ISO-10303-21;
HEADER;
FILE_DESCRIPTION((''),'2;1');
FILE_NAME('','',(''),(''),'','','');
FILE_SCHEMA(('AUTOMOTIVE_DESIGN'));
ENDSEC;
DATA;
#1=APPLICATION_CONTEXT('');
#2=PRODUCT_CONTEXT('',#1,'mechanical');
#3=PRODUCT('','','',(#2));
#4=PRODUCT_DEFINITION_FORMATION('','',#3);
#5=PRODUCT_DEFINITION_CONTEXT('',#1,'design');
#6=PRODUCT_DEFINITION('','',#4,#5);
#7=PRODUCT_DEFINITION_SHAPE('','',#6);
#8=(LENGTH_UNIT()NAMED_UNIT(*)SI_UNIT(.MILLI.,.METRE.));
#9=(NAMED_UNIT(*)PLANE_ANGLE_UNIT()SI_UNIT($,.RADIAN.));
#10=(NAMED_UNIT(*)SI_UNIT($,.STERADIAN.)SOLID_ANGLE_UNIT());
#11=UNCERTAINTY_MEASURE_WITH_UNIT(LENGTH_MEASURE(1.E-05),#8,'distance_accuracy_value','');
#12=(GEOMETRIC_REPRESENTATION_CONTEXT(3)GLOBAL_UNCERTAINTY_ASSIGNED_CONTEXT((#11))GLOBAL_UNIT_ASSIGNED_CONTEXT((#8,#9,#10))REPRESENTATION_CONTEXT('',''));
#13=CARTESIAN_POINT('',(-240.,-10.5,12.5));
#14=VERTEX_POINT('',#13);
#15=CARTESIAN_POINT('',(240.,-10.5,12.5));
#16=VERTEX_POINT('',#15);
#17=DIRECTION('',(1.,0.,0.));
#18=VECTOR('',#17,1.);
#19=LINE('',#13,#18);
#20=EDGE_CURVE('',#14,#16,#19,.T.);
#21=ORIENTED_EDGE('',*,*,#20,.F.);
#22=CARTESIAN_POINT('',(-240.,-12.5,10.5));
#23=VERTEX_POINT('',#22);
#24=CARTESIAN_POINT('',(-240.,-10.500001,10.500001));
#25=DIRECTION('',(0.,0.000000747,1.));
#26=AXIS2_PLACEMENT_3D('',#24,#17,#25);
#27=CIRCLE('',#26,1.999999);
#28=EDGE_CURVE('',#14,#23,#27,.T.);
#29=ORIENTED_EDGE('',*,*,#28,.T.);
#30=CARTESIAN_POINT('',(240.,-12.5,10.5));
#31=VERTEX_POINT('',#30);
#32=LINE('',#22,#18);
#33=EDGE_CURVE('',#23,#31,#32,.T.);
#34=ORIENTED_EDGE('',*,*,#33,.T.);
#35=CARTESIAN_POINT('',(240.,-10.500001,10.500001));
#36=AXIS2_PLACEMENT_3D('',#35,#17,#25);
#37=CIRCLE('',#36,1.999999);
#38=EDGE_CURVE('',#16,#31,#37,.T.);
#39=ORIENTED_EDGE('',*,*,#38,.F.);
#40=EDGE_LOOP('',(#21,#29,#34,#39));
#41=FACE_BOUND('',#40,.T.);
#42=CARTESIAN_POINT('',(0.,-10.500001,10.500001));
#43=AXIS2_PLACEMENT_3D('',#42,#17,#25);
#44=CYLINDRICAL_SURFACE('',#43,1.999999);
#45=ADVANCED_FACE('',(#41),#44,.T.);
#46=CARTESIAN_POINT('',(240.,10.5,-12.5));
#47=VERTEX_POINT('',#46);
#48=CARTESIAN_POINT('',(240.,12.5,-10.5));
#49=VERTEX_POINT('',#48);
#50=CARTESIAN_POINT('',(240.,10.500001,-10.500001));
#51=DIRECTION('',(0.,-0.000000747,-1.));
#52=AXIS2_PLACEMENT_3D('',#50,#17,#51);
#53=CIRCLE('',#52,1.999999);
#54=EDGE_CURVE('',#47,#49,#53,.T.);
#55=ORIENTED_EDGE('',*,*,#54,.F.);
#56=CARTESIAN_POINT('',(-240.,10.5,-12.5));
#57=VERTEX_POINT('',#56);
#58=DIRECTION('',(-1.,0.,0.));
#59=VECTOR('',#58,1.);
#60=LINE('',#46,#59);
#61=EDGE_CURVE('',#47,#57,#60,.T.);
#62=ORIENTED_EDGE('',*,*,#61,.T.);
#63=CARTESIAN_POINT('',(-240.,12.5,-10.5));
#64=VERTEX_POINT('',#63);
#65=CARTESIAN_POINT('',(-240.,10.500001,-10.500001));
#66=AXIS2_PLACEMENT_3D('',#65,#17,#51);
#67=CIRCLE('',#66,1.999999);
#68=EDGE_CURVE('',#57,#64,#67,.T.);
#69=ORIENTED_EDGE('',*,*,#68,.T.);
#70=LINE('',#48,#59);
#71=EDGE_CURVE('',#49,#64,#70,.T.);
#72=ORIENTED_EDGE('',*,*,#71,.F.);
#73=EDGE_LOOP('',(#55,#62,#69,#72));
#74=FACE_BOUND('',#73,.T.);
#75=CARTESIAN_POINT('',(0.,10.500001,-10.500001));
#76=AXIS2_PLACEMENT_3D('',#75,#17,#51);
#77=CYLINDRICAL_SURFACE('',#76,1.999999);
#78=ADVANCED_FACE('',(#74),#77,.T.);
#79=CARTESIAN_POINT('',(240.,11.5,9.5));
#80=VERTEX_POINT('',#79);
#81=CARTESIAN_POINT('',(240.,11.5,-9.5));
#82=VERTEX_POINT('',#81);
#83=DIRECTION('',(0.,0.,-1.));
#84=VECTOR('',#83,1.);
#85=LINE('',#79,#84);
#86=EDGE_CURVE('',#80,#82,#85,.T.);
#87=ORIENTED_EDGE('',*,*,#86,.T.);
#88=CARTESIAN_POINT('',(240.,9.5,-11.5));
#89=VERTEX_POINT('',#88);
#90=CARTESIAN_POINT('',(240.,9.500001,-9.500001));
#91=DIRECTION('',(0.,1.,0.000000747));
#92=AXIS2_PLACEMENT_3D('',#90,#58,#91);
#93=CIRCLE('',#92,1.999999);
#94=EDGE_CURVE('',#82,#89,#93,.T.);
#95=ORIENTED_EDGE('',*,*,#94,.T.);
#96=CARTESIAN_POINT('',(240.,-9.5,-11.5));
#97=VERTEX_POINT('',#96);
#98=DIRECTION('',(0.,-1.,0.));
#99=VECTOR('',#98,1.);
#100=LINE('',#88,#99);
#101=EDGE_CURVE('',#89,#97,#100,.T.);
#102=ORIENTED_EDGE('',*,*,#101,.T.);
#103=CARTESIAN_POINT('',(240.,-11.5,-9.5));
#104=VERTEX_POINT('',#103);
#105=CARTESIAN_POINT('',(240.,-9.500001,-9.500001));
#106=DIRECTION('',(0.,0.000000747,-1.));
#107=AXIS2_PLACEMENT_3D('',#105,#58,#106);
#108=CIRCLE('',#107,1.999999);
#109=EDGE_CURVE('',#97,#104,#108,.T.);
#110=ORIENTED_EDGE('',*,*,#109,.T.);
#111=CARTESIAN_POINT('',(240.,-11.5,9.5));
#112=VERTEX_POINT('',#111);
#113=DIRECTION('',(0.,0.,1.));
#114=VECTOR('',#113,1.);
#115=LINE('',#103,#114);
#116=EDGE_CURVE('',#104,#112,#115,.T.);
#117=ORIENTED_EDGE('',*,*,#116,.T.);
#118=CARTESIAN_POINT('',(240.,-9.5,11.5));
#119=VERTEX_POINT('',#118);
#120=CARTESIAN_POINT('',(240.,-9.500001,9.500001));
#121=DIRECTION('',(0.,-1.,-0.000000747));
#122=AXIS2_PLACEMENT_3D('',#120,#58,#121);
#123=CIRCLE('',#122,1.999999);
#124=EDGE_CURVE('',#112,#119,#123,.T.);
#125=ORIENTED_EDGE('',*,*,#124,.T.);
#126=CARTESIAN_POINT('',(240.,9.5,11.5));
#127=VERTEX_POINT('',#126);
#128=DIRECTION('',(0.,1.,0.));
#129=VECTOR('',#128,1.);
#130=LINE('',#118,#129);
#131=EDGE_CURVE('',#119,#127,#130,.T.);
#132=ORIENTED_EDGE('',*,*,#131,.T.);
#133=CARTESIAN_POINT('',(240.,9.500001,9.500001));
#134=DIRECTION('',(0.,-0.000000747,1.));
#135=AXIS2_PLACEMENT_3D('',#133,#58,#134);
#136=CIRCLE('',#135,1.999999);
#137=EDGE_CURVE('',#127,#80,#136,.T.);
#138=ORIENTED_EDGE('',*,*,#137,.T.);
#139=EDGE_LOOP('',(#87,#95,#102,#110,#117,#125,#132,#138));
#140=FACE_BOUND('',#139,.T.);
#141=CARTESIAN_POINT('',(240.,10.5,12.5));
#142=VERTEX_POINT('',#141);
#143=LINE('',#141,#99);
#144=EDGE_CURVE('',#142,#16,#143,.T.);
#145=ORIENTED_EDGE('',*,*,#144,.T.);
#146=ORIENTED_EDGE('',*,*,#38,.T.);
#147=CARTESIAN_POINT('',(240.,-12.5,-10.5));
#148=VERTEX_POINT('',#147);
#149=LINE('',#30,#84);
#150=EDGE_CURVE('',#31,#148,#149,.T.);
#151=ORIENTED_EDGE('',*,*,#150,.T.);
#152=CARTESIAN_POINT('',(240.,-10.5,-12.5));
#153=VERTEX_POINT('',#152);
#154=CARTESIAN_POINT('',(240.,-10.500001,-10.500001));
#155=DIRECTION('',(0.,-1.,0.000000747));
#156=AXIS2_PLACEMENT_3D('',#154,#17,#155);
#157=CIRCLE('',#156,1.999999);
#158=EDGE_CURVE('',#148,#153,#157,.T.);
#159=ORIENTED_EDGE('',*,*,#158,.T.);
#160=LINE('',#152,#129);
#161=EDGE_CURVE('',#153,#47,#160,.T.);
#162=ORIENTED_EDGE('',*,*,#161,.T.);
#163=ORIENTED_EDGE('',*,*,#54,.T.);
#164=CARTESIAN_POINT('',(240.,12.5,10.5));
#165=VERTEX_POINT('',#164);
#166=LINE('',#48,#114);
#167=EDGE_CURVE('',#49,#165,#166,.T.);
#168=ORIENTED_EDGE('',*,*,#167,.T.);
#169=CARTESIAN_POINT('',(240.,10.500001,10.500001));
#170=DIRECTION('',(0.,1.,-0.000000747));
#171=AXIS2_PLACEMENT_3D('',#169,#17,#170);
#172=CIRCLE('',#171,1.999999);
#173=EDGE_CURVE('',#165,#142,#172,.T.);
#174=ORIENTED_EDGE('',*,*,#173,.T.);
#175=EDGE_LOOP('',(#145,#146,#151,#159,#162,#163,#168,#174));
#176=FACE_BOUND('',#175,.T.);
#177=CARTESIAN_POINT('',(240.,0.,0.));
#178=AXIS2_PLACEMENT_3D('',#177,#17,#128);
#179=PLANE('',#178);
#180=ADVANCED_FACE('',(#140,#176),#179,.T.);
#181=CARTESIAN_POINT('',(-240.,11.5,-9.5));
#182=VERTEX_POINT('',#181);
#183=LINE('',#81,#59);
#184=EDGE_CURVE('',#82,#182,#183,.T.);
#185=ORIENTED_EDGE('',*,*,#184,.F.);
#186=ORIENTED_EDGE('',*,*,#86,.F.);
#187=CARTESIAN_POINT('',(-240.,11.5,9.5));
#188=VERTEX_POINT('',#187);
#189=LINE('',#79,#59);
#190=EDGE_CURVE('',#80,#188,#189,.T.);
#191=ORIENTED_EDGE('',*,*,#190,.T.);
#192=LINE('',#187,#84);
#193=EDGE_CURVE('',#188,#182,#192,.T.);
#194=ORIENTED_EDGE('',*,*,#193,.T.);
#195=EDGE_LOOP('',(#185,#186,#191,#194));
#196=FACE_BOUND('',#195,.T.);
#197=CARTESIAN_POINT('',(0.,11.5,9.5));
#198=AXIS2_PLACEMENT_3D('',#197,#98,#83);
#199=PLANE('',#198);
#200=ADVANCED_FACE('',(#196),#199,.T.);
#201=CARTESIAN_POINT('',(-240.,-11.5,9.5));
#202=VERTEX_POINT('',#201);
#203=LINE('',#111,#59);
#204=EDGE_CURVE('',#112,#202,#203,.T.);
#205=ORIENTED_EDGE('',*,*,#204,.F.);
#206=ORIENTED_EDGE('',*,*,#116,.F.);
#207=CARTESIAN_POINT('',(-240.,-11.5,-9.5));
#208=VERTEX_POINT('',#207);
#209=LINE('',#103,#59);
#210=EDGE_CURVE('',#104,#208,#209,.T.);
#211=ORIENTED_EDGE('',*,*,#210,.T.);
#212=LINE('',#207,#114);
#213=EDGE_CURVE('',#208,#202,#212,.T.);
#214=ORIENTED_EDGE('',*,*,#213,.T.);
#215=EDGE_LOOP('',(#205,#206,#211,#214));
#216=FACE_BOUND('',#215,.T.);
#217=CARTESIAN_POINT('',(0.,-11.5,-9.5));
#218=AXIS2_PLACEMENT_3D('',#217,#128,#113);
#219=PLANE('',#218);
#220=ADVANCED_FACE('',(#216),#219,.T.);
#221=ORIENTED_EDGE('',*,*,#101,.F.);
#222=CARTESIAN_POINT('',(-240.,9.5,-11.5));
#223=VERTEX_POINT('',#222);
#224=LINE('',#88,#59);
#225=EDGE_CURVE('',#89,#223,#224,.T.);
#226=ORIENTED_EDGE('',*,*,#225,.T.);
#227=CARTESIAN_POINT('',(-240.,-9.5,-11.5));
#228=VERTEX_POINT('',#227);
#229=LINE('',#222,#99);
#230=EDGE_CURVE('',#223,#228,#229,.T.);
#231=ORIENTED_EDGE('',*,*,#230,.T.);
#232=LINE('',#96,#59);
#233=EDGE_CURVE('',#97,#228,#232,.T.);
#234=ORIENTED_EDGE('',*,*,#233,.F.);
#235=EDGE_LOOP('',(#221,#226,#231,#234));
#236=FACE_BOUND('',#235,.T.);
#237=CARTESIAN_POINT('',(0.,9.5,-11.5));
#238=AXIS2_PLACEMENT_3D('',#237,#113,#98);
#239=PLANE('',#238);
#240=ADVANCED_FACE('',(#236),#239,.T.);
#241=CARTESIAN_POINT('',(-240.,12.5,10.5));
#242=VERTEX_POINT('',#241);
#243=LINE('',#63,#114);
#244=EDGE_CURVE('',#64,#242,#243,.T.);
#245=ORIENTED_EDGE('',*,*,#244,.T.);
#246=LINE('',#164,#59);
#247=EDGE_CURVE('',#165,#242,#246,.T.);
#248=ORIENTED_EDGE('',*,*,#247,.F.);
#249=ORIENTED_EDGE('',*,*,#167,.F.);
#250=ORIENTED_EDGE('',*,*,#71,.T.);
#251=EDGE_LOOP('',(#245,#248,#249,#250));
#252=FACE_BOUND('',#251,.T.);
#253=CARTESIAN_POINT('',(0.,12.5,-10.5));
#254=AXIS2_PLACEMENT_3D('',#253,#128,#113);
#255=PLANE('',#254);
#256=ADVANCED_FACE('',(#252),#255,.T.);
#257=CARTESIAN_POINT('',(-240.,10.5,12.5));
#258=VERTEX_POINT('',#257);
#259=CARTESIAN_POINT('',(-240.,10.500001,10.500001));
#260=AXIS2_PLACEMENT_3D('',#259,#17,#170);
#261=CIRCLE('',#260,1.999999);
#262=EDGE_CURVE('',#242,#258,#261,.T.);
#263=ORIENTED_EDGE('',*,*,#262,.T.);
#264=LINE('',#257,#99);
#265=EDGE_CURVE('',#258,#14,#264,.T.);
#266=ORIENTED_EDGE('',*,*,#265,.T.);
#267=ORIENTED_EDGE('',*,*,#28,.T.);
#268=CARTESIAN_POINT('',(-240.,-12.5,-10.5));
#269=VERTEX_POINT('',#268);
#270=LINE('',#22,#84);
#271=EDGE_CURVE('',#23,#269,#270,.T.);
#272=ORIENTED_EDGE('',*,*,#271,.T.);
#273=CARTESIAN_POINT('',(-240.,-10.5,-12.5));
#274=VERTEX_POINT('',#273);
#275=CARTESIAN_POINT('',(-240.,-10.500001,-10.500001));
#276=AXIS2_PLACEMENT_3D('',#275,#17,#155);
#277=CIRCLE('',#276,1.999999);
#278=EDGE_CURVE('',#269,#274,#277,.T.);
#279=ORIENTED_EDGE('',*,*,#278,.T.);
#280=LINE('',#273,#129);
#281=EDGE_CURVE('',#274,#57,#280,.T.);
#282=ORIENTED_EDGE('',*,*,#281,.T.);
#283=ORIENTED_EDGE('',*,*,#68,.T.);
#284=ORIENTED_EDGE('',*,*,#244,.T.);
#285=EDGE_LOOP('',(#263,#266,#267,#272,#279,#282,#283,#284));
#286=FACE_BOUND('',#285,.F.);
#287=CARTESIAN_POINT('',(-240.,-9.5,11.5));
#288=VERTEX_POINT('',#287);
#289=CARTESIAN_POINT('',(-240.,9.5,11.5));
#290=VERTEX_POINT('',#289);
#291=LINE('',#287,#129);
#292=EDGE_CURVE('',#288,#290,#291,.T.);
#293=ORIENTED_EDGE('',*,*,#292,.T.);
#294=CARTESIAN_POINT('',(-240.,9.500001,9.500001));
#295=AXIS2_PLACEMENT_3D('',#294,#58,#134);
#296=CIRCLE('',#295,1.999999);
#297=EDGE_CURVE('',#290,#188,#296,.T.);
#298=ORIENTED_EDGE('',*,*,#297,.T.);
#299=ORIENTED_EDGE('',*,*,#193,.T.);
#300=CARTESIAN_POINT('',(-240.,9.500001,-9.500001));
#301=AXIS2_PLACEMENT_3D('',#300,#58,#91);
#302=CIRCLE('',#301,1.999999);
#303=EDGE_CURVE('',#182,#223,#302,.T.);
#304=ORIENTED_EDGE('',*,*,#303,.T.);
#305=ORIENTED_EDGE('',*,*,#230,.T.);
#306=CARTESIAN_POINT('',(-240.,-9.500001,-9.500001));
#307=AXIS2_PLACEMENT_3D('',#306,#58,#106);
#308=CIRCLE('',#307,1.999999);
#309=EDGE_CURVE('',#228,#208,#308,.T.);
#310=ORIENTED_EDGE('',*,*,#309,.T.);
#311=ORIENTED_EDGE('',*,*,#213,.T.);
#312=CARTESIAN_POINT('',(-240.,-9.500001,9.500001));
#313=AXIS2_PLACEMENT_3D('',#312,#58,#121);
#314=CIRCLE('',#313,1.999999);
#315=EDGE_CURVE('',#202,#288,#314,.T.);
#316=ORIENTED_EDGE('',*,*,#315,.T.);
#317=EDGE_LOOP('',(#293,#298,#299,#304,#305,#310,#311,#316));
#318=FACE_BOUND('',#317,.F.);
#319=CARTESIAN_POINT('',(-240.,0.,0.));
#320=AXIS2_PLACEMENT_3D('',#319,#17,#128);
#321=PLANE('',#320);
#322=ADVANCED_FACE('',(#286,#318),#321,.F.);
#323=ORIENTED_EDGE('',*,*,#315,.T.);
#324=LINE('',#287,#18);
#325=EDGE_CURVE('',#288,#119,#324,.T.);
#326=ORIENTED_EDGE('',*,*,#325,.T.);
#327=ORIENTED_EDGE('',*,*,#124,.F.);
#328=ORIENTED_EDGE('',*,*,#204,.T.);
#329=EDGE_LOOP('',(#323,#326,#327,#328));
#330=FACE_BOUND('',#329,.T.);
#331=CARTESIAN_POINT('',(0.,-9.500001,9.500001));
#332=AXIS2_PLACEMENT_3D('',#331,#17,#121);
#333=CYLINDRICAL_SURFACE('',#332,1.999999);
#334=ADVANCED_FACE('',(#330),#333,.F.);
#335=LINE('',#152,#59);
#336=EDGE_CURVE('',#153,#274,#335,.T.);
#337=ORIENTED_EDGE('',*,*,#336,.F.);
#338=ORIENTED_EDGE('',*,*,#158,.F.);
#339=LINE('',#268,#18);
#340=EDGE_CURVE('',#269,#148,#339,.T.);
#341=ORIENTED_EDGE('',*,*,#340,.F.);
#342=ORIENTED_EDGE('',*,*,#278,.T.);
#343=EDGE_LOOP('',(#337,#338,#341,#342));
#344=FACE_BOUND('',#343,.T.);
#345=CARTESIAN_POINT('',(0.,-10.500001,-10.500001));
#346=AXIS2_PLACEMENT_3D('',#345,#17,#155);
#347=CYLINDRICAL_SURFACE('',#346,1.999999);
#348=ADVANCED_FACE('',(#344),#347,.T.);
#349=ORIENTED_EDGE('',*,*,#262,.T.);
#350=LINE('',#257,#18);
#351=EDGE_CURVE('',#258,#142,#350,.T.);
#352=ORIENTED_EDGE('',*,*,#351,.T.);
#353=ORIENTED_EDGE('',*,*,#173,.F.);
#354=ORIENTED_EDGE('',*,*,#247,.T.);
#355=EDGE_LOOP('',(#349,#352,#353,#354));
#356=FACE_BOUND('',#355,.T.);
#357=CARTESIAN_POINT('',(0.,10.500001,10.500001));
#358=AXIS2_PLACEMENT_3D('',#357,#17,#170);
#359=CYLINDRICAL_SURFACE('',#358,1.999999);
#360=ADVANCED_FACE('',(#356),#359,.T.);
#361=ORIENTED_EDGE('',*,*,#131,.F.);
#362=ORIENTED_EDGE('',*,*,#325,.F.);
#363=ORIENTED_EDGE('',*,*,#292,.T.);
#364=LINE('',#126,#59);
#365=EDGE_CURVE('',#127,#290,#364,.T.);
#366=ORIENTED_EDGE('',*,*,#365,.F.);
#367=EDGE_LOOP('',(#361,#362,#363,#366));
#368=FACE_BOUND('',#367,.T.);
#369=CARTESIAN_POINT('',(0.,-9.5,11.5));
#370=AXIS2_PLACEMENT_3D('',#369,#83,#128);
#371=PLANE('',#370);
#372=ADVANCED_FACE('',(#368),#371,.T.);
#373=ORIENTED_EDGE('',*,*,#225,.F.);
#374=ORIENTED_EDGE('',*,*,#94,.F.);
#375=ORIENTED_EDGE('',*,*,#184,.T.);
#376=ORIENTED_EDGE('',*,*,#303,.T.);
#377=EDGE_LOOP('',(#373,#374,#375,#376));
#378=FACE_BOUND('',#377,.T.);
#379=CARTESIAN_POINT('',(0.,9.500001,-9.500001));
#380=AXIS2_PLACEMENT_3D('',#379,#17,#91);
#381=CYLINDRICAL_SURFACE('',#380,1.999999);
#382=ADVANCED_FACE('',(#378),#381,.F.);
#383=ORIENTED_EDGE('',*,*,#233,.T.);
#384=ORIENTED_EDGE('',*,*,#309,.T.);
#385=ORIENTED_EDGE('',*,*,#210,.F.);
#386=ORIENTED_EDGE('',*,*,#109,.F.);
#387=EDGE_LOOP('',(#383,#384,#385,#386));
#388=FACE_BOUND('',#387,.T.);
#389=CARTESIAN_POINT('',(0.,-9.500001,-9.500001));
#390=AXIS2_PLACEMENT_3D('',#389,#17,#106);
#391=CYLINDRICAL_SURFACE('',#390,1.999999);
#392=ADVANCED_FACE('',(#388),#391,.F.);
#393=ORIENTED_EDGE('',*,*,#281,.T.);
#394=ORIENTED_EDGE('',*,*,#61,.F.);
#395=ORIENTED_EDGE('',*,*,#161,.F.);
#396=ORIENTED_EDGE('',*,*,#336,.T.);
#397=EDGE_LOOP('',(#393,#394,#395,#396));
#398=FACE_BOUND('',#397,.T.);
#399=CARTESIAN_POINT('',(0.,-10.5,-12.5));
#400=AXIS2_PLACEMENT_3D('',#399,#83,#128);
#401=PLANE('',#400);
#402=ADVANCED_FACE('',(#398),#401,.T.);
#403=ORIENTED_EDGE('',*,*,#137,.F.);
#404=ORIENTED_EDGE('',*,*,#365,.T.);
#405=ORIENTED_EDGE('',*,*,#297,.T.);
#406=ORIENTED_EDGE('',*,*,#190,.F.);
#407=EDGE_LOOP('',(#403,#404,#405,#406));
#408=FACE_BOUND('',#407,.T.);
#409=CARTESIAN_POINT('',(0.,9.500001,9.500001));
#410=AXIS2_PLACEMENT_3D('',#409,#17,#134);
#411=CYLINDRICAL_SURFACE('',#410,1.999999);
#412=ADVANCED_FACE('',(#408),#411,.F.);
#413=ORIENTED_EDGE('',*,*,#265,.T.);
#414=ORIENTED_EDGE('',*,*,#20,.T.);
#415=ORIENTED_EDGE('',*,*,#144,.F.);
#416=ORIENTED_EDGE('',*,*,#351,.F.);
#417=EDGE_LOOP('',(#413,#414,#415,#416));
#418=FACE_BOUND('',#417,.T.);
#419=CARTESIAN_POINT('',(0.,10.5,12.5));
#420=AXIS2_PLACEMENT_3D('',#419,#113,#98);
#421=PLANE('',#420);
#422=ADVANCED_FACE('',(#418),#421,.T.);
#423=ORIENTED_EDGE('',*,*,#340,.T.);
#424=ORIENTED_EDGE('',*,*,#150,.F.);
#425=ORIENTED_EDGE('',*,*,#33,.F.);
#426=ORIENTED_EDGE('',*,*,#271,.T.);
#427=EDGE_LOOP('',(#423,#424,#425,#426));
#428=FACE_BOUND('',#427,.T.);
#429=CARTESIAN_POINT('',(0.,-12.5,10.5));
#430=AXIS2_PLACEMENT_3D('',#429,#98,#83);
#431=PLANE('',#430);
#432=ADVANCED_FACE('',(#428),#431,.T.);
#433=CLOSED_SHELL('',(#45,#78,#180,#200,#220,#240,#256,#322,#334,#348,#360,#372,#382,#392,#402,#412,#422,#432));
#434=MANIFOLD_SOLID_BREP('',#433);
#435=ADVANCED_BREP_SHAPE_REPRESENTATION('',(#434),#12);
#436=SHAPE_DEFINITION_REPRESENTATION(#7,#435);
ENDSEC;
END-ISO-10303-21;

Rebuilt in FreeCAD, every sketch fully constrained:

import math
import FreeCAD as App
import Part
import Sketcher

V = App.Vector
Q = App.Units.Quantity

doc = App.newDocument("Part")
body = doc.addObject("PartDesign::Body", "Body")

sketch1 = body.newObject("Sketcher::SketchObject", "Sketch")
sketch1.AttachmentSupport = (doc.getObject("YZ_Plane"), [""])
sketch1.MapMode = "FlatFace"
sketch1.addGeometry([
    Part.ArcOfCircle(Part.Circle(V(10.5, 10.5, 0), V(0, 0, 1), 2), math.radians(0), math.radians(90)),
    Part.LineSegment(V(10.5, 12.5, 0), V(-10.5, 12.5, 0)),
    Part.ArcOfCircle(Part.Circle(V(-10.5, 10.5, 0), V(0, 0, 1), 2), math.radians(90), math.radians(180)),
    Part.LineSegment(V(-12.5, 10.5, 0), V(-12.5, -10.5, 0)),
    Part.ArcOfCircle(Part.Circle(V(-10.5, -10.5, 0), V(0, 0, 1), 2), math.radians(180), math.radians(270)),
    Part.LineSegment(V(-10.5, -12.5, 0), V(10.5, -12.5, 0)),
    Part.ArcOfCircle(Part.Circle(V(10.5, -10.5, 0), V(0, 0, 1), 2), math.radians(-90), math.radians(0)),
    Part.LineSegment(V(12.5, -10.5, 0), V(12.5, 10.5, 0)),
    Part.ArcOfCircle(Part.Circle(V(-9.5, 9.5, 0), V(0, 0, 1), 2), math.radians(90), math.radians(180)),
    Part.LineSegment(V(-9.5, 11.5, 0), V(9.5, 11.5, 0)),
    Part.ArcOfCircle(Part.Circle(V(9.5, 9.5, 0), V(0, 0, 1), 2), math.radians(0), math.radians(90)),
    Part.LineSegment(V(11.5, 9.5, 0), V(11.5, -9.5, 0)),
    Part.ArcOfCircle(Part.Circle(V(9.5, -9.5, 0), V(0, 0, 1), 2), math.radians(-90), math.radians(0)),
    Part.LineSegment(V(9.5, -11.5, 0), V(-9.5, -11.5, 0)),
    Part.ArcOfCircle(Part.Circle(V(-9.5, -9.5, 0), V(0, 0, 1), 2), math.radians(180), math.radians(270)),
    Part.LineSegment(V(-11.5, -9.5, 0), V(-11.5, 9.5, 0)),
], False)
sketch1.addConstraint([
    Sketcher.Constraint("Tangent", 0, 2, 1, 1),
    Sketcher.Constraint("Tangent", 1, 2, 2, 1),
    Sketcher.Constraint("Tangent", 2, 2, 3, 1),
    Sketcher.Constraint("Tangent", 3, 2, 4, 1),
    Sketcher.Constraint("Tangent", 4, 2, 5, 1),
    Sketcher.Constraint("Tangent", 5, 2, 6, 1),
    Sketcher.Constraint("Tangent", 6, 2, 7, 1),
    Sketcher.Constraint("Tangent", 7, 2, 0, 1),
    Sketcher.Constraint("Tangent", 8, 1, 9, 1),
    Sketcher.Constraint("Tangent", 9, 2, 10, 2),
    Sketcher.Constraint("Tangent", 10, 1, 11, 1),
    Sketcher.Constraint("Tangent", 11, 2, 12, 2),
    Sketcher.Constraint("Tangent", 12, 1, 13, 1),
    Sketcher.Constraint("Tangent", 13, 2, 14, 2),
    Sketcher.Constraint("Tangent", 14, 1, 15, 1),
    Sketcher.Constraint("Tangent", 15, 2, 8, 2),
    Sketcher.Constraint("Horizontal", 1),
    Sketcher.Constraint("Vertical", 3),
    Sketcher.Constraint("Horizontal", 5),
    Sketcher.Constraint("Vertical", 7),
    Sketcher.Constraint("Horizontal", 9),
    Sketcher.Constraint("Vertical", 11),
    Sketcher.Constraint("Horizontal", 13),
    Sketcher.Constraint("Vertical", 15),
    Sketcher.Constraint("Equal", 0, 2),
    Sketcher.Constraint("Equal", 2, 4),
    Sketcher.Constraint("Equal", 4, 6),
    Sketcher.Constraint("Equal", 6, 8),
    Sketcher.Constraint("Equal", 8, 10),
    Sketcher.Constraint("Equal", 10, 12),
    Sketcher.Constraint("Equal", 12, 14),
    Sketcher.Constraint("Symmetric", 0, 3, 4, 3, -1, 1),
    Sketcher.Constraint("Symmetric", 8, 3, 12, 3, -1, 1),
    Sketcher.Constraint("Equal", 5, 3),
    Sketcher.Constraint("Equal", 13, 11),
    Sketcher.Constraint("Radius", 0, Q("1.999999 mm")),
    Sketcher.Constraint("DistanceX", 1, 2, 1, 1, Q("21 mm")),
    Sketcher.Constraint("DistanceX", 9, 1, 9, 2, Q("19 mm")),
])
pad1 = body.newObject("PartDesign::Pad", "Pad")
pad1.Profile = sketch1
pad1.Length = 480
pad1.Midplane = True

doc.recompute()
